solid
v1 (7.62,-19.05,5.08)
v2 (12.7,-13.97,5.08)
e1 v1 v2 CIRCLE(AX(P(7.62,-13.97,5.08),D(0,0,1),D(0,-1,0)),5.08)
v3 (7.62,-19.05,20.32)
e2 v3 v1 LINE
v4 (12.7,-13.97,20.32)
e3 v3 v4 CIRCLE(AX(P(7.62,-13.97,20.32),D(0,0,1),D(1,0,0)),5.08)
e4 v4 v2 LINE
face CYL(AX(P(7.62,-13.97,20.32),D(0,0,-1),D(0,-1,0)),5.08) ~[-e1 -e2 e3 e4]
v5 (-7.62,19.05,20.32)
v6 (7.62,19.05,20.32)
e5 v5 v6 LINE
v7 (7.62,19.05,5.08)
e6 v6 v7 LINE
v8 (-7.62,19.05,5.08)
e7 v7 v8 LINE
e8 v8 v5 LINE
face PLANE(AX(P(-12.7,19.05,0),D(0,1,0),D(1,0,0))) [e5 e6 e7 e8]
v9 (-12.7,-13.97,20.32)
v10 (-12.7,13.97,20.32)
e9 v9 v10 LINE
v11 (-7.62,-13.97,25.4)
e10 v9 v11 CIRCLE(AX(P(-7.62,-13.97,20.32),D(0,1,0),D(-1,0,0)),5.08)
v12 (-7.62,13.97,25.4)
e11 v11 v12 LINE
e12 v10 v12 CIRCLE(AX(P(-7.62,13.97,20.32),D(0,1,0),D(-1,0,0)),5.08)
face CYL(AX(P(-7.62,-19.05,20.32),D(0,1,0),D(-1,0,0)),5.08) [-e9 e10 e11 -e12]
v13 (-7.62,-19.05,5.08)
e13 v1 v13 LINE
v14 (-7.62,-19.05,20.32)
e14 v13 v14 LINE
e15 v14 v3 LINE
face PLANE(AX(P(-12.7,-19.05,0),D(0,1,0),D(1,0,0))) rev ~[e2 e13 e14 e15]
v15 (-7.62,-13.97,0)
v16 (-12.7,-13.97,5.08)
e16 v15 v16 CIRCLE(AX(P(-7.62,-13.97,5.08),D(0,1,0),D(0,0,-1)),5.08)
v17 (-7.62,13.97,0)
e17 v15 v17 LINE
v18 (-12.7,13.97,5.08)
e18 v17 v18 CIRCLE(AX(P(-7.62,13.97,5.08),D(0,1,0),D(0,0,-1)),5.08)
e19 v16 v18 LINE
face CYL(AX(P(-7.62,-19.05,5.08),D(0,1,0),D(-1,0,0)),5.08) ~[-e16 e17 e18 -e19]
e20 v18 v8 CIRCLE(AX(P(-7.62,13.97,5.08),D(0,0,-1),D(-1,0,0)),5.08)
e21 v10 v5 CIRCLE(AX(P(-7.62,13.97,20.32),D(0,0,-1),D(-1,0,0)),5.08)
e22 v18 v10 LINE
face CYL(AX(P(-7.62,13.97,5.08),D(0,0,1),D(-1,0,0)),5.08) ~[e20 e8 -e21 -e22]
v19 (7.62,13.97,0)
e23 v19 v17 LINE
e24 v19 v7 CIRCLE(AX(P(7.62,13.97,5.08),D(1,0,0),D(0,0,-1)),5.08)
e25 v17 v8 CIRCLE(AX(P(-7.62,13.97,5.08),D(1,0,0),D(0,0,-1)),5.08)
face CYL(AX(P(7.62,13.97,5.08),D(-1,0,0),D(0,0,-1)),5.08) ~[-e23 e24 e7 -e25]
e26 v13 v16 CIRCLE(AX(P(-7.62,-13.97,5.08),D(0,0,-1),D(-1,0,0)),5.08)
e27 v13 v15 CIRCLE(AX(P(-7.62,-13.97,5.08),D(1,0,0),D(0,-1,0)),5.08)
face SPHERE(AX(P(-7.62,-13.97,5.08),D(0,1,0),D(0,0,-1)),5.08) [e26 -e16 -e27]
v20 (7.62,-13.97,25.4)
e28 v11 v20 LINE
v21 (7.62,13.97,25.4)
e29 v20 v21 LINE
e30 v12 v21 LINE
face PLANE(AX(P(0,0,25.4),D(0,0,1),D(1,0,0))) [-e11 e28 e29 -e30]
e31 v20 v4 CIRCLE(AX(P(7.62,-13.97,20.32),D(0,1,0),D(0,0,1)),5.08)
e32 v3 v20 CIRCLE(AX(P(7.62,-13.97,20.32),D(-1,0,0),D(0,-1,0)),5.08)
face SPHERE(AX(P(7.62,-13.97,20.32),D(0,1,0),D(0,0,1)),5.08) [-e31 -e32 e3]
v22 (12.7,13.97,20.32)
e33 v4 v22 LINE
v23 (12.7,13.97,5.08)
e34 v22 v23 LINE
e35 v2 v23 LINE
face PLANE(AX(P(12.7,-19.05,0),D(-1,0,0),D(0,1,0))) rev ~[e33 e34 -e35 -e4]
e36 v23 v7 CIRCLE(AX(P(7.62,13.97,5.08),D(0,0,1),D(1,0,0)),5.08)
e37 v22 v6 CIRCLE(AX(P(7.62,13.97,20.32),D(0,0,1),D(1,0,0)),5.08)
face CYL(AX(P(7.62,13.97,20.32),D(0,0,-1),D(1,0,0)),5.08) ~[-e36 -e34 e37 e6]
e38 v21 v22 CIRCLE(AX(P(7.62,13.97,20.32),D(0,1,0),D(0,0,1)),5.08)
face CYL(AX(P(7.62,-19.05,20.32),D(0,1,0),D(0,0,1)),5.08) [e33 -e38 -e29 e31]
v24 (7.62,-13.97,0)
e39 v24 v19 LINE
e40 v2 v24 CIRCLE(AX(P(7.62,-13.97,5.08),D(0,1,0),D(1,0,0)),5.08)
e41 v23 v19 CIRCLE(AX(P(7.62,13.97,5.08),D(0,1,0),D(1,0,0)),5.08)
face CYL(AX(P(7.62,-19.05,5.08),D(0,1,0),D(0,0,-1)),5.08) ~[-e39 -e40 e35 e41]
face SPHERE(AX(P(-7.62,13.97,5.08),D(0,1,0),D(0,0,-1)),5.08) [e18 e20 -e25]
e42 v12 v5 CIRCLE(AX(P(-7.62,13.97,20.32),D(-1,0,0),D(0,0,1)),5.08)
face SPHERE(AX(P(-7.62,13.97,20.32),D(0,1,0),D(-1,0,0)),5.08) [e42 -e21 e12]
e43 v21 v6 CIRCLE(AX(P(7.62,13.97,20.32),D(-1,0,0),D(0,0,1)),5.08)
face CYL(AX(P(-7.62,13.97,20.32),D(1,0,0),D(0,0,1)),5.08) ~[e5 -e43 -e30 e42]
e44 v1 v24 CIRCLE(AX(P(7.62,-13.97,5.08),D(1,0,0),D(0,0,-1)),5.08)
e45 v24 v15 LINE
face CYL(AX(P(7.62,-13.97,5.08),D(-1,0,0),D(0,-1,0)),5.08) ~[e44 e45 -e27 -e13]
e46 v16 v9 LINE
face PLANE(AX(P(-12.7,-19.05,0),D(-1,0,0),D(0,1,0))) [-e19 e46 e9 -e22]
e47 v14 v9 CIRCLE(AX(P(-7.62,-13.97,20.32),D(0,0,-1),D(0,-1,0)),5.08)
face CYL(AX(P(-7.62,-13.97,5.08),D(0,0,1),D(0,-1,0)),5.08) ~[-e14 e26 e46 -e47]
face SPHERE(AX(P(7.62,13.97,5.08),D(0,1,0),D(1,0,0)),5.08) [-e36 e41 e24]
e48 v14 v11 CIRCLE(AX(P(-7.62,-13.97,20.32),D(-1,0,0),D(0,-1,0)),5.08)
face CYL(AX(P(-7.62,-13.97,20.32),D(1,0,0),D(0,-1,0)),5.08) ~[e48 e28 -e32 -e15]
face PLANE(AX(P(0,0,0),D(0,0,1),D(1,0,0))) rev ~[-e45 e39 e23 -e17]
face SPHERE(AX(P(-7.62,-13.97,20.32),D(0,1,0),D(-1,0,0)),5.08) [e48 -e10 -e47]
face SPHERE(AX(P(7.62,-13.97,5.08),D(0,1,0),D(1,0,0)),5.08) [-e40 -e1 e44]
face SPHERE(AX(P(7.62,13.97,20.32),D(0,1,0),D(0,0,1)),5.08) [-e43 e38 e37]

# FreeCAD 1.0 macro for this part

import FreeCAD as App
import Part
import Sketcher
from FreeCAD import Vector
Q = App.Units.Quantity


def edges_at(feature, points):
    """Names of the edges that pass closest to the given points."""
    edges = feature.Shape.Edges
    near = lambda p: min(range(len(edges)), key=lambda i: edges[i].distToShape(Part.Vertex(*p))[0])
    return sorted({f"Edge{near(p) + 1}" for p in points})


def add_polygon(sketch, points):
    """Adds a closed chain of lines whose ends are joined by coincident constraints."""
    first, n = sketch.GeometryCount, len(points)
    for a, b in zip(points, points[1:] + points[:1]):
        sketch.addGeometry(Part.LineSegment(App.Vector(*a, 0), App.Vector(*b, 0)), False)
    for i in range(n):
        sketch.addConstraint(Sketcher.Constraint("Coincident", first + i, 2, first + (i + 1) % n, 1))

doc = App.newDocument("Part")
body = doc.addObject("PartDesign::Body", "Body")

sketch1 = body.newObject("Sketcher::SketchObject", "Sketch")
sketch1.AttachmentSupport = (doc.getObject("XY_Plane"), [""])
sketch1.MapMode = "FlatFace"
add_polygon(sketch1, [(-12.7, 19.05), (-12.7, -19.05), (12.7, -19.05), (12.7, 19.05)])
sketch1.addConstraint([
    Sketcher.Constraint("Vertical", 0),
    Sketcher.Constraint("Horizontal", 1),
    Sketcher.Constraint("Vertical", 2),
    Sketcher.Constraint("Horizontal", 3),
    Sketcher.Constraint("Symmetric", 0, 2, 2, 2, -1, 1),
    Sketcher.Constraint("DistanceX", 1, 1, 1, 2, Q("1 in")),
    Sketcher.Constraint("DistanceY", 0, 2, 0, 1, Q("1.5 in")),
])
pad1 = body.newObject("PartDesign::Pad", "Pad")
pad1.Profile = sketch1
pad1.Length = Q("1 in")

sketch2 = body.newObject("Sketcher::SketchObject", "Sketch001")
sketch2.AttachmentSupport = (doc.getObject("XY_Plane"), [""])
sketch2.MapMode = "FlatFace"
add_polygon(sketch2, [(-12.7, 19.05), (-12.7, -19.05), (12.7, -19.05), (12.7, 19.05)])
sketch2.addConstraint([
    Sketcher.Constraint("Vertical", 0),
    Sketcher.Constraint("Horizontal", 1),
    Sketcher.Constraint("Vertical", 2),
    Sketcher.Constraint("Horizontal", 3),
    Sketcher.Constraint("Symmetric", 0, 2, 2, 2, -1, 1),
    Sketcher.Constraint("DistanceX", 1, 1, 1, 2, Q("1 in")),
    Sketcher.Constraint("DistanceY", 0, 2, 0, 1, Q("1.5 in")),
])
pad2 = body.newObject("PartDesign::Pad", "Pad001")
pad2.Profile = sketch2
pad2.Length = Q("1 in")
doc.recompute()

fillet = body.newObject("PartDesign::Fillet", "Fillet")
fillet.Base = (pad2, edges_at(pad2, [
    (-12.7, 0, 25.4),
    (12.7, 0, 25.4),
    (-12.7, 0, 0),
    (12.7, 0, 0),
]))
fillet.Radius = Q("0.2 in")
doc.recompute()

fillet2 = body.newObject("PartDesign::Fillet", "Fillet001")
fillet2.Base = (fillet, edges_at(fillet, [
    (0, -19.05, 25.4),
    (-12.7, -19.05, 12.7),
    (12.7, -19.05, 12.7),
    (-12.7, 19.05, 12.7),
    (12.7, 19.05, 12.7),
]))
fillet2.Radius = Q("0.2 in")

doc.recompute()
